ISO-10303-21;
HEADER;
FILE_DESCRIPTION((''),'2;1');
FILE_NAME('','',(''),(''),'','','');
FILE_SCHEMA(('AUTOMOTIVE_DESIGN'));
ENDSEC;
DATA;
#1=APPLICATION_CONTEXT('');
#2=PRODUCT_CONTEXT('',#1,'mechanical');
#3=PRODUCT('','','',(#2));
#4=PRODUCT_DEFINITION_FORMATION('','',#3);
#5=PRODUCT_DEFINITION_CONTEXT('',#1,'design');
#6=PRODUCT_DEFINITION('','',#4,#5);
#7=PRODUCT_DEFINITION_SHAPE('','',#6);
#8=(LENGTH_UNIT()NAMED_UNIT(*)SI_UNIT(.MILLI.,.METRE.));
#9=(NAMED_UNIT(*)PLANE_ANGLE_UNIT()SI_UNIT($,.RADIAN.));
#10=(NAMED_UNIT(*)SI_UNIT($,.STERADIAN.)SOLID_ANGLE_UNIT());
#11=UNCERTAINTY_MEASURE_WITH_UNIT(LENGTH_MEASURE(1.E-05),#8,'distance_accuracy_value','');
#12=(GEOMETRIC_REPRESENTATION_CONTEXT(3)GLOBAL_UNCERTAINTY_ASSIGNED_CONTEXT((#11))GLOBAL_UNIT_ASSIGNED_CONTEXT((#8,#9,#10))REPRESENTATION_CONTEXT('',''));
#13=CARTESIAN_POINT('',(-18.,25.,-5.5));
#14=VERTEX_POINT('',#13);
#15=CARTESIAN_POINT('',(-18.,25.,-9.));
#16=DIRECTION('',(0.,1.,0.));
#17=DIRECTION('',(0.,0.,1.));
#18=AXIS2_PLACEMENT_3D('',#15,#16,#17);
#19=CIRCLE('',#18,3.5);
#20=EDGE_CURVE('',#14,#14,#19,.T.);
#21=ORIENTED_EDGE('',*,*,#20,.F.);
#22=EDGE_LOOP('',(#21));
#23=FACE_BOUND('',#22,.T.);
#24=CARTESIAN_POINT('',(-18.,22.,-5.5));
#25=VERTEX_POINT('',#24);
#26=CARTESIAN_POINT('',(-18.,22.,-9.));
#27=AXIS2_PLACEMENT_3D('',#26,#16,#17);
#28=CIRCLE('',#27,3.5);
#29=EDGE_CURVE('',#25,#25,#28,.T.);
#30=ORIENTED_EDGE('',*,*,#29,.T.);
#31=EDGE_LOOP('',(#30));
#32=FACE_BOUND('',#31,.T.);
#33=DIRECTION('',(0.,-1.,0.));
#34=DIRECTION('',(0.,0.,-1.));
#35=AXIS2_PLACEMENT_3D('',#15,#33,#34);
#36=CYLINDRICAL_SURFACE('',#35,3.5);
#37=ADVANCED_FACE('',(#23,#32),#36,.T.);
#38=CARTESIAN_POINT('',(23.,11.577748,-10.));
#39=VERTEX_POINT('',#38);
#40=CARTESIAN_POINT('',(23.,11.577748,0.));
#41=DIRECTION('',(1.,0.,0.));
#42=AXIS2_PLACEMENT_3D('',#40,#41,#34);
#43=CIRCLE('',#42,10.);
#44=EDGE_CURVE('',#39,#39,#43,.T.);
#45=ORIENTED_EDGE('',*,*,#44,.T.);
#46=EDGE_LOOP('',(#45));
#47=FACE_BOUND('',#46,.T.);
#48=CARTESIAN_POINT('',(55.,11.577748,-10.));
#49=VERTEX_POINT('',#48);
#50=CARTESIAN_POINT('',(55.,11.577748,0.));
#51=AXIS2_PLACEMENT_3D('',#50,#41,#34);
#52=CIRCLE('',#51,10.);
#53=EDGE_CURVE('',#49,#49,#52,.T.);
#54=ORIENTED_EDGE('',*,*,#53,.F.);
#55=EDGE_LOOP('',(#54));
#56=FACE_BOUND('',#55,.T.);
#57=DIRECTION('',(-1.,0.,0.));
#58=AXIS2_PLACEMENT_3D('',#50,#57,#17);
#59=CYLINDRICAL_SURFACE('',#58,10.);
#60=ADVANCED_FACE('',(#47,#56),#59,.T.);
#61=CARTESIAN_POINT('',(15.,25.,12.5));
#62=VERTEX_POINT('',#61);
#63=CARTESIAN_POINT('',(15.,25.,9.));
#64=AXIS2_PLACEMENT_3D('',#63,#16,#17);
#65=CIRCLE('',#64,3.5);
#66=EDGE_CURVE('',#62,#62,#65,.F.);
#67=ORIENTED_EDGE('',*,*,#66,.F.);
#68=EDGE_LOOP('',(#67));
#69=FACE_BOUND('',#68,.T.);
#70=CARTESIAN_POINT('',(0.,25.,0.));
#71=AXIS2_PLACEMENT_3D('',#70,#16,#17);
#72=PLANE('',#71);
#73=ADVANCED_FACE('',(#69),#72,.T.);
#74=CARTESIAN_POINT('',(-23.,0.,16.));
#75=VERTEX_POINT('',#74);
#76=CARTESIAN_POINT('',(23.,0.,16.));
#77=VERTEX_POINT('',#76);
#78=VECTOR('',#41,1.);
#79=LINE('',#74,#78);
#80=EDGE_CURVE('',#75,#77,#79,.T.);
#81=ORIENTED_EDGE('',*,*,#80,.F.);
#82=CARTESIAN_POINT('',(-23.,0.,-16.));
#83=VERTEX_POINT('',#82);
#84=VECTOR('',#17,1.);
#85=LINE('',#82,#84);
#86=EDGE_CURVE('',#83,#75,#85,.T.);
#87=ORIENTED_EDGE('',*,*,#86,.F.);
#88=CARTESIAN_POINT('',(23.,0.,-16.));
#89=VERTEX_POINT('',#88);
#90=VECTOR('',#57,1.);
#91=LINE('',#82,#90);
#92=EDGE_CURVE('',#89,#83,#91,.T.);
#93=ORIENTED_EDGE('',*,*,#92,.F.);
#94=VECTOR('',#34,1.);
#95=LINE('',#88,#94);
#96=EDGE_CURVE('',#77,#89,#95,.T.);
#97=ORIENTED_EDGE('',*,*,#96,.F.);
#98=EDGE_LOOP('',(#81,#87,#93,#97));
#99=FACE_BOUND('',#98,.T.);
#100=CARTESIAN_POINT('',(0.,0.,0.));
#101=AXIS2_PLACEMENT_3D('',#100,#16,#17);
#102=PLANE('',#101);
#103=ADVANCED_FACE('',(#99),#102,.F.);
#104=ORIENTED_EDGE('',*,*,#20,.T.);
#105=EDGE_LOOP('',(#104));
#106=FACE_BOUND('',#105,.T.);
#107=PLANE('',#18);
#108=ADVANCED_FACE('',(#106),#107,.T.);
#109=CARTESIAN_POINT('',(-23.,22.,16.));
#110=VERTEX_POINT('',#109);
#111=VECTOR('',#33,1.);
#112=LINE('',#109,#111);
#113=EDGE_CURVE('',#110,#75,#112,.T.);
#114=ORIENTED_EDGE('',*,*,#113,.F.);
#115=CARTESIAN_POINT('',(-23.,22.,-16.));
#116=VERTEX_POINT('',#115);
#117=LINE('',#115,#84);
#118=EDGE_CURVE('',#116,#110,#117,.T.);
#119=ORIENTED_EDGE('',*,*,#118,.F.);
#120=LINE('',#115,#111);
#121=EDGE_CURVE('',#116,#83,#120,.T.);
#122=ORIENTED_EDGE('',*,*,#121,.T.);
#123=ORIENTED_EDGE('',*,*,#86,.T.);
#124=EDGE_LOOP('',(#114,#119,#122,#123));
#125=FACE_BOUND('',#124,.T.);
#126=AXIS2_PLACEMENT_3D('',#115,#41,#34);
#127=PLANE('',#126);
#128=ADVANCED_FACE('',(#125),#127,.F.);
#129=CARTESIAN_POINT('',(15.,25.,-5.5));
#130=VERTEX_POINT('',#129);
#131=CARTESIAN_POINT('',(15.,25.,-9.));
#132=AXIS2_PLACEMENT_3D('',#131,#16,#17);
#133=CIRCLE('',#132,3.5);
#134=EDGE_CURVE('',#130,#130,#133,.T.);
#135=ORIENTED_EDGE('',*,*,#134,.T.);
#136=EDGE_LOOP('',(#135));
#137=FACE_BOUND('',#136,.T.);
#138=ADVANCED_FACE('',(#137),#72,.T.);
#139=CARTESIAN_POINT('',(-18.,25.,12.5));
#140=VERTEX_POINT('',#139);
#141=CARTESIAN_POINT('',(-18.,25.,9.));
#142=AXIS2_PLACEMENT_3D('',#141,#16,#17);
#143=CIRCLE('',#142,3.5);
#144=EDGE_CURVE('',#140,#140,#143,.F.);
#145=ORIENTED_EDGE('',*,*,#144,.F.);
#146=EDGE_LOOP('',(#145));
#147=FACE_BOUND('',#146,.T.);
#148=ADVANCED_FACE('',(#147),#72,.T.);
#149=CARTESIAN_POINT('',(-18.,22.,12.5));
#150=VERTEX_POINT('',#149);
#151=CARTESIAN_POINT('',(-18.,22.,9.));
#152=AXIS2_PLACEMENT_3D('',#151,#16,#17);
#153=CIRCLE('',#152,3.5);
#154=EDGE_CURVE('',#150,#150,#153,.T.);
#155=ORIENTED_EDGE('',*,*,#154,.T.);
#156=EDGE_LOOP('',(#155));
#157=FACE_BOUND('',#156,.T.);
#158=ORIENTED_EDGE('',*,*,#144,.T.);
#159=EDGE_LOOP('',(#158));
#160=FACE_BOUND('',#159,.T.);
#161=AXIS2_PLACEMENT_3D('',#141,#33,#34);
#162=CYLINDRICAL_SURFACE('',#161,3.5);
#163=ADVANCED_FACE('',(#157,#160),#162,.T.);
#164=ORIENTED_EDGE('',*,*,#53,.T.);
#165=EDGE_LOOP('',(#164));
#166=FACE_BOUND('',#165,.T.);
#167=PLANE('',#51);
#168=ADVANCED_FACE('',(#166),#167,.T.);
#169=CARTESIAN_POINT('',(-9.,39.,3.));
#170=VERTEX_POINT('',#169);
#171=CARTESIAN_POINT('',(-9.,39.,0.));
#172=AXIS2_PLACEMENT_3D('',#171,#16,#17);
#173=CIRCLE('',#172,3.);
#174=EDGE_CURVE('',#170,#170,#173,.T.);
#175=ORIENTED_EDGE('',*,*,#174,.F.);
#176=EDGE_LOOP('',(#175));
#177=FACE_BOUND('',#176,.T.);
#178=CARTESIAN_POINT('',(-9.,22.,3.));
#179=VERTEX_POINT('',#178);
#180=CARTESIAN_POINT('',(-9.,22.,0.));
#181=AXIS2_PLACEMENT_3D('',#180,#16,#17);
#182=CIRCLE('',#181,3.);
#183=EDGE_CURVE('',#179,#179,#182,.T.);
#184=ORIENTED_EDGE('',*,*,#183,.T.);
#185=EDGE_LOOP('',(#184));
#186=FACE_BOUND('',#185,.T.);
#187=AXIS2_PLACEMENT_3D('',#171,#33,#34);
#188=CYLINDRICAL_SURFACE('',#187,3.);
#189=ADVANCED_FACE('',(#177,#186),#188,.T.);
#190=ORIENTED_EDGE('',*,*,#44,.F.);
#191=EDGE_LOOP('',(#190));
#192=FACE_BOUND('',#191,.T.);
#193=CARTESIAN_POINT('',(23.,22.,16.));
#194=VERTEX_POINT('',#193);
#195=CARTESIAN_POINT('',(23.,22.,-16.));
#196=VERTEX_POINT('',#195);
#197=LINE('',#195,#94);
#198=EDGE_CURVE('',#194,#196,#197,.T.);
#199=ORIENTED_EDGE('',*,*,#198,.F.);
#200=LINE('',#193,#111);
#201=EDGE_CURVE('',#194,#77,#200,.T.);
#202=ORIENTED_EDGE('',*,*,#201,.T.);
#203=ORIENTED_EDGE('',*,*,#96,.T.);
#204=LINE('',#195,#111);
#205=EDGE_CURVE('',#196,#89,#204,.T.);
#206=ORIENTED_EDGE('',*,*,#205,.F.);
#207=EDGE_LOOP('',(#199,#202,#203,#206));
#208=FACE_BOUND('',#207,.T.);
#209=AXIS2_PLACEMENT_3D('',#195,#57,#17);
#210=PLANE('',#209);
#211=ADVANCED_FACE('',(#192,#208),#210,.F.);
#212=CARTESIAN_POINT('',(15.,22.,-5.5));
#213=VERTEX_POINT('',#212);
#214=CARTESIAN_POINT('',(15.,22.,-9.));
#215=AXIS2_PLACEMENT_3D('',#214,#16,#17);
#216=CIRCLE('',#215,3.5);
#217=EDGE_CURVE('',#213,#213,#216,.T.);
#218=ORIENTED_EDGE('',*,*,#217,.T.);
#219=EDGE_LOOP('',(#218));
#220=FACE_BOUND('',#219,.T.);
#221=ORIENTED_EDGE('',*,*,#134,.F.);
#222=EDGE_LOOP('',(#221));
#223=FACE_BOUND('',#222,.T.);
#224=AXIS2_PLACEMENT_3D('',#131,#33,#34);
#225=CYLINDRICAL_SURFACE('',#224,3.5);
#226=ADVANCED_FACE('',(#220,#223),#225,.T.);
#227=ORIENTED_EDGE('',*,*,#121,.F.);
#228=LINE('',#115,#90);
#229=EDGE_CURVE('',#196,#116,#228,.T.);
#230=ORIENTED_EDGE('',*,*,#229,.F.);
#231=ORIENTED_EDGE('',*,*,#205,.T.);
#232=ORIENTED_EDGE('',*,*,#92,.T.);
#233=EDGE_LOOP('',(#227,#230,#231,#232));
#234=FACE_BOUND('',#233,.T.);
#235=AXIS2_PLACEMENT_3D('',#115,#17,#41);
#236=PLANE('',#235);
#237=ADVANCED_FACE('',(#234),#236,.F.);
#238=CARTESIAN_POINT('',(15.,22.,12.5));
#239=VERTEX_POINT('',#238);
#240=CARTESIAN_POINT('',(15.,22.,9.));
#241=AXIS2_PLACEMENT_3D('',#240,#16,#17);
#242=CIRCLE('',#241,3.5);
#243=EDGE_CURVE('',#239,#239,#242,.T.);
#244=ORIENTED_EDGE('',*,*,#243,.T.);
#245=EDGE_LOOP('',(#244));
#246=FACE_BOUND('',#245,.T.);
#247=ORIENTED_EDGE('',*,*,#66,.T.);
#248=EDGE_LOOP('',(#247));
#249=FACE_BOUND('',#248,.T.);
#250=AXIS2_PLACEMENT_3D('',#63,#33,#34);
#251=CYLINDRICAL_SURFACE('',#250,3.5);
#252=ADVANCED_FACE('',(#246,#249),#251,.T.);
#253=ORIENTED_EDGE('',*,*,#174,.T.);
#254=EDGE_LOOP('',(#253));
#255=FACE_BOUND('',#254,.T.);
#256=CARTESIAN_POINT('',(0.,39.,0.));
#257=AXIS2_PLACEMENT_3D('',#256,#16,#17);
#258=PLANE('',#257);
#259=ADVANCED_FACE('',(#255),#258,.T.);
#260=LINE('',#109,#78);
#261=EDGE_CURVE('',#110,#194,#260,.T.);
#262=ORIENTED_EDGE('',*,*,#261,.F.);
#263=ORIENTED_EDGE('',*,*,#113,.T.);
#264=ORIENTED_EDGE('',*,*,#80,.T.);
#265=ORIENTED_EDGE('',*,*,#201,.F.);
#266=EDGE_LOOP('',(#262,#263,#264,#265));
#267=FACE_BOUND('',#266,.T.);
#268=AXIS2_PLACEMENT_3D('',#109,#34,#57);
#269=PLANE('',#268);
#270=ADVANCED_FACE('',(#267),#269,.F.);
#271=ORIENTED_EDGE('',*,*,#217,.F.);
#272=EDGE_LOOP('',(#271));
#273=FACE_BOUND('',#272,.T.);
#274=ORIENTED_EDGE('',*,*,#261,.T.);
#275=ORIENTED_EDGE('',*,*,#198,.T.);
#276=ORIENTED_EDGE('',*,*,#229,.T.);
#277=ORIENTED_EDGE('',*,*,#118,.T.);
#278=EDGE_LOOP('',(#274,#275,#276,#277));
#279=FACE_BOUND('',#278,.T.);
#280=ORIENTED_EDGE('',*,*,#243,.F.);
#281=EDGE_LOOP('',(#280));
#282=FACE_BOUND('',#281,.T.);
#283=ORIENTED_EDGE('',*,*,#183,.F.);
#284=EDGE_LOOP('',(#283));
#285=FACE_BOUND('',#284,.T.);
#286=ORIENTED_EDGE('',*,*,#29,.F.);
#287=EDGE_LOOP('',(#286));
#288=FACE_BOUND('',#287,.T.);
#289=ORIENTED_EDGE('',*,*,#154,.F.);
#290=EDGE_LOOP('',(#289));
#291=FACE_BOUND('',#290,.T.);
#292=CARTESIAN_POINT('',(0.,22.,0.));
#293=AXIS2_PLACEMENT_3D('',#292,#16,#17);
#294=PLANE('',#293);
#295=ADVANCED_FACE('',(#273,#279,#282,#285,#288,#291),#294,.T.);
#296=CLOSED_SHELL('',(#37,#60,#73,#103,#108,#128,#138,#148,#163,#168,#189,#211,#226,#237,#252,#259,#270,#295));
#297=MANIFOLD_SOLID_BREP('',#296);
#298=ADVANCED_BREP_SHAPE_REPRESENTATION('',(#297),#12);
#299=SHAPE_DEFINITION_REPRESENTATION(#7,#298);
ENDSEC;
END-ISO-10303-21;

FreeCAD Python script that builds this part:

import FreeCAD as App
import Part
import Sketcher
from FreeCAD import Vector
Q = App.Units.Quantity


def add_polygon(sketch, points):
    """Adds a closed chain of lines whose ends are joined by coincident constraints."""
    first, n = sketch.GeometryCount, len(points)
    for a, b in zip(points, points[1:] + points[:1]):
        sketch.addGeometry(Part.LineSegment(App.Vector(*a, 0), App.Vector(*b, 0)), False)
    for i in range(n):
        sketch.addConstraint(Sketcher.Constraint("Coincident", first + i, 2, first + (i + 1) % n, 1))

doc = App.newDocument("Part")
body = doc.addObject("PartDesign::Body", "Body")

# Sketch on XZ plane
sketch1 = body.newObject("Sketcher::SketchObject", "Sketch")
sketch1.AttachmentSupport = (doc.getObject("XZ_Plane"), [""])
sketch1.MapMode = "FlatFace"
add_polygon(sketch1, [(-23, -16), (-23, 16), (23, 16), (23, -16)])  # lines 0-3
sketch1.addConstraint([
    Sketcher.Constraint("Vertical", 0),
    Sketcher.Constraint("Horizontal", 1),
    Sketcher.Constraint("Vertical", 2),
    Sketcher.Constraint("Horizontal", 3),
    Sketcher.Constraint("Symmetric", 0, 2, 2, 2, -1, 1),
    Sketcher.Constraint("DistanceX", 1, 1, 1, 2, Q("46 mm")),
    Sketcher.Constraint("DistanceY", 0, 1, 0, 2, Q("32 mm")),
])
pad1 = body.newObject("PartDesign::Pad", "Pad")
pad1.Profile = sketch1
pad1.Length = 22
pad1.Reversed = True

# Sketch on YZ plane
sketch2 = body.newObject("Sketcher::SketchObject", "Sketch001")
sketch2.AttachmentSupport = (doc.getObject("YZ_Plane"), [""])
sketch2.MapMode = "FlatFace"
sketch2.AttachmentOffset = App.Placement(Vector(0, 0, 23), App.Rotation())
sketch2.addGeometry(Part.Circle(Vector(12, 0, 0), Vector(0, 0, 1), 10), False)
sketch2.addConstraint([
    Sketcher.Constraint("PointOnObject", 0, 3, -1),
    Sketcher.Constraint("Diameter", 0, Q("20 mm")),
    Sketcher.Constraint("DistanceX", -1, 1, 0, 3, Q("11.577748 mm")),
])
pad2 = body.newObject("PartDesign::Pad", "Pad001")
pad2.Profile = sketch2
pad2.Length = 32

# Sketch on XZ plane
sketch3 = body.newObject("Sketcher::SketchObject", "Sketch002")
sketch3.AttachmentSupport = (doc.getObject("XZ_Plane"), [""])
sketch3.MapMode = "FlatFace"
sketch3.AttachmentOffset = App.Placement(Vector(0, 0, -22), App.Rotation())
sketch3.addGeometry(Part.Circle(Vector(-9, 0, 0), Vector(0, 0, 1), 3), False)
sketch3.addConstraint([
    Sketcher.Constraint("PointOnObject", 0, 3, -1),
    Sketcher.Constraint("Diameter", 0, Q("6 mm")),
    Sketcher.Constraint("DistanceX", 0, 3, -1, 1, Q("9 mm")),
])
pad3 = body.newObject("PartDesign::Pad", "Pad002")
pad3.Profile = sketch3
pad3.Length = 17
pad3.Reversed = True

# Sketch on XZ plane
sketch4 = body.newObject("Sketcher::SketchObject", "Sketch003")
sketch4.AttachmentSupport = (doc.getObject("XZ_Plane"), [""])
sketch4.MapMode = "FlatFace"
sketch4.AttachmentOffset = App.Placement(Vector(0, 0, -22), App.Rotation())
sketch4.addGeometry([
    Part.Circle(Vector(-18, 9, 0), Vector(0, 0, 1), 3.5),
    Part.Circle(Vector(15, -9, 0), Vector(0, 0, 1), 3.5),
    Part.Circle(Vector(15, 9, 0), Vector(0, 0, 1), 3.5),
    Part.Circle(Vector(-18, -9, 0), Vector(0, 0, 1), 3.5),
], False)
sketch4.addConstraint([
    Sketcher.Constraint("Equal", 0, 1),
    Sketcher.Constraint("Equal", 1, 2),
    Sketcher.Constraint("Equal", 2, 3),
    Sketcher.Constraint("Symmetric", 1, 3, 2, 3, -1),
    Sketcher.Constraint("Symmetric", 0, 3, 3, 3, -1),
    Sketcher.Constraint("Horizontal", 0, 3, 2, 3),
    Sketcher.Constraint("Diameter", 0, Q("7 mm")),
    Sketcher.Constraint("DistanceX", 0, 3, -1, 1, Q("18 mm")),
    Sketcher.Constraint("DistanceY", -1, 1, 0, 3, Q("9 mm")),
    Sketcher.Constraint("DistanceX", -1, 1, 1, 3, Q("15 mm")),
])
pad4 = body.newObject("PartDesign::Pad", "Pad003")
pad4.Profile = sketch4
pad4.Length = 3
pad4.Reversed = True

doc.recompute()
